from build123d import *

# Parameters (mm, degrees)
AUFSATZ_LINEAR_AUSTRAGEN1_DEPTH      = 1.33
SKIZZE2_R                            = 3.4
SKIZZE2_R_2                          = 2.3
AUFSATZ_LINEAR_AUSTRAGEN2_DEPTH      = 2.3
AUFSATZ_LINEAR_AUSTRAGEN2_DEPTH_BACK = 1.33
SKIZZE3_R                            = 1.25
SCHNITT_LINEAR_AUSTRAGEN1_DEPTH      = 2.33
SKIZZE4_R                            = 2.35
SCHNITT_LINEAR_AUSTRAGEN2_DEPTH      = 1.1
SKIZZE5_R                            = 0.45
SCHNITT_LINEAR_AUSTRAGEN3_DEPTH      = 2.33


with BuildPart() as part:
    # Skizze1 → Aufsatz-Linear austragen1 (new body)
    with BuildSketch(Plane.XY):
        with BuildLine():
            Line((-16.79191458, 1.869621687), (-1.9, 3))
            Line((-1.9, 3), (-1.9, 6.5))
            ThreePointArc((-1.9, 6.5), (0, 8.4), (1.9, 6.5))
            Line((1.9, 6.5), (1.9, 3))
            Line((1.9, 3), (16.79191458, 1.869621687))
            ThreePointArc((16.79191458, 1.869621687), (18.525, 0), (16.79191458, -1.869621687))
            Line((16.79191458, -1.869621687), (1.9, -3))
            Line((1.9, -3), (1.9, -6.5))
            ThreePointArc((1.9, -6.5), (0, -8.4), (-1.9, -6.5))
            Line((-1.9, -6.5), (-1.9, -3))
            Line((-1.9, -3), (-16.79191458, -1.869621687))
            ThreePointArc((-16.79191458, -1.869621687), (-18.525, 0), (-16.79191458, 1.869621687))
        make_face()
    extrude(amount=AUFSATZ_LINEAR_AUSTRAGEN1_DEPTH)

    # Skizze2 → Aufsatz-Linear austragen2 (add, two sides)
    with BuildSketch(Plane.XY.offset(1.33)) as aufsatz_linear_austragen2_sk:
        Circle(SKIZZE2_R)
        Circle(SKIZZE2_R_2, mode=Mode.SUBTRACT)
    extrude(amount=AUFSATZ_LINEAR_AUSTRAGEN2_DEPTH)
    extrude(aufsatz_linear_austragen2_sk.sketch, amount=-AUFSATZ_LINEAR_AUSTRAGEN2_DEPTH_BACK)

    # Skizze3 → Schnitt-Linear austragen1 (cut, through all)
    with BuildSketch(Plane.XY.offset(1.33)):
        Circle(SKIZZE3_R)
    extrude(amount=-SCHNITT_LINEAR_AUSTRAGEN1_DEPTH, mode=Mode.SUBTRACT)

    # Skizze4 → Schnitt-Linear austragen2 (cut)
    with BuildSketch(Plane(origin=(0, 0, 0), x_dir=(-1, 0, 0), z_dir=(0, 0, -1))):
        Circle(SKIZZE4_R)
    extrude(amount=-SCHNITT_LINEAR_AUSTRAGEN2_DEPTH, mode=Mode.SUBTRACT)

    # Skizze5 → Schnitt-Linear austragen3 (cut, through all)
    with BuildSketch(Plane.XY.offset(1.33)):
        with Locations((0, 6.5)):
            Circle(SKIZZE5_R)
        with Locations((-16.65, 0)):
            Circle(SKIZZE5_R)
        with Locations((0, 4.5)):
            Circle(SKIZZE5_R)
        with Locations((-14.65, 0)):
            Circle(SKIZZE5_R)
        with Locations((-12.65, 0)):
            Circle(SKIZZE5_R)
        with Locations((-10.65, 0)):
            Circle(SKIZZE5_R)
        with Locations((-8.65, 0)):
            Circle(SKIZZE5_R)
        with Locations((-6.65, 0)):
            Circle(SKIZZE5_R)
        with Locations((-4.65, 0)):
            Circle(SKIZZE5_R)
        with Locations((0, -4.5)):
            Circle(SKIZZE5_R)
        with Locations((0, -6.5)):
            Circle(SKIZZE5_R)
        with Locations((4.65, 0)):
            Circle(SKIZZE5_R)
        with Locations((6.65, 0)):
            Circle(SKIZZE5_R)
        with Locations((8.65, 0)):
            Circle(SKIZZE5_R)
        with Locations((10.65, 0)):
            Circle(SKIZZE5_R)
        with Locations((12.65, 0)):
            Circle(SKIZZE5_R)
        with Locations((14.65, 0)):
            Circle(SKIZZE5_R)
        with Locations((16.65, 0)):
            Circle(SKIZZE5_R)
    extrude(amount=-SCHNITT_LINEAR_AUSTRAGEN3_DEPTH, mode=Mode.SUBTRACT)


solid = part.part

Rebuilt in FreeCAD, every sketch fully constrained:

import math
import FreeCAD as App
import Part
import Sketcher
from FreeCAD import Vector
Q = App.Units.Quantity

doc = App.newDocument("Part")
body = doc.addObject("PartDesign::Body", "Body")

# Sketch on XY plane
sketch1 = doc.addObject("Sketcher::SketchObject", "Sketch")
body.addObject(sketch1)
sketch1.AttachmentSupport = (doc.XY_Plane, [""])
sketch1.MapMode = "FlatFace"
sketch1.addGeometry(Part.LineSegment(Vector(-1.9, 3, 0), Vector(-16.8, 1.9, 0)), False)
sketch1.addGeometry(Part.ArcOfCircle(Part.Circle(Vector(-16.6, 0, 0), Vector(0, 0, 1), 1.9), math.radians(94), math.radians(266)), False)
sketch1.addGeometry(Part.LineSegment(Vector(-16.8, -1.9, 0), Vector(-1.9, -3, 0)), False)
sketch1.addGeometry(Part.LineSegment(Vector(-1.9, -3, 0), Vector(-1.9, -6.5, 0)), False)
sketch1.addGeometry(Part.ArcOfCircle(Part.Circle(Vector(0, -6.5, 0), Vector(0, 0, 1), 1.9), math.radians(180), math.radians(360)), False)
sketch1.addGeometry(Part.LineSegment(Vector(1.9, -6.5, 0), Vector(1.9, -3, 0)), False)
sketch1.addGeometry(Part.LineSegment(Vector(1.9, -3, 0), Vector(16.8, -1.9, 0)), False)
sketch1.addGeometry(Part.ArcOfCircle(Part.Circle(Vector(16.6, 0, 0), Vector(0, 0, 1), 1.9), math.radians(-86), math.radians(86)), False)
sketch1.addGeometry(Part.LineSegment(Vector(16.8, 1.9, 0), Vector(1.9, 3, 0)), False)
sketch1.addGeometry(Part.LineSegment(Vector(1.9, 3, 0), Vector(1.9, 6.5, 0)), False)
sketch1.addGeometry(Part.ArcOfCircle(Part.Circle(Vector(0, 6.5, 0), Vector(0, 0, 1), 1.9), math.radians(0), math.radians(180)), False)
sketch1.addGeometry(Part.LineSegment(Vector(-1.9, 6.5, 0), Vector(-1.9, 3, 0)), False)
sketch1.addConstraint(Sketcher.Constraint("Tangent", 0, 2, 1, 1))
sketch1.addConstraint(Sketcher.Constraint("Tangent", 1, 2, 2, 1))
sketch1.addConstraint(Sketcher.Constraint("Coincident", 2, 2, 3, 1))
sketch1.addConstraint(Sketcher.Constraint("Tangent", 3, 2, 4, 1))
sketch1.addConstraint(Sketcher.Constraint("Tangent", 4, 2, 5, 1))
sketch1.addConstraint(Sketcher.Constraint("Coincident", 5, 2, 6, 1))
sketch1.addConstraint(Sketcher.Constraint("Tangent", 6, 2, 7, 1))
sketch1.addConstraint(Sketcher.Constraint("Tangent", 7, 2, 8, 1))
sketch1.addConstraint(Sketcher.Constraint("Coincident", 8, 2, 9, 1))
sketch1.addConstraint(Sketcher.Constraint("Tangent", 9, 2, 10, 1))
sketch1.addConstraint(Sketcher.Constraint("Tangent", 10, 2, 11, 1))
sketch1.addConstraint(Sketcher.Constraint("Coincident", 11, 2, 0, 1))
sketch1.addConstraint(Sketcher.Constraint("Vertical", 3))
sketch1.addConstraint(Sketcher.Constraint("Vertical", 5))
sketch1.addConstraint(Sketcher.Constraint("Vertical", 9))
sketch1.addConstraint(Sketcher.Constraint("Vertical", 11))
sketch1.addConstraint(Sketcher.Constraint("Equal", 1, 7))
sketch1.addConstraint(Sketcher.Constraint("Equal", 4, 10))
sketch1.addConstraint(Sketcher.Constraint("Symmetric", 1, 3, 7, 3, -1, 1))
sketch1.addConstraint(Sketcher.Constraint("Symmetric", 4, 3, 10, 3, -1, 1))
sketch1.addConstraint(Sketcher.Constraint("Symmetric", 2, 2, 5, 2, -2))
sketch1.addConstraint(Sketcher.Constraint("Symmetric", 0, 2, 7, 2, -2))
sketch1.addConstraint(Sketcher.Constraint("Parallel", 0, 6))
sketch1.addConstraint(Sketcher.Constraint("Radius", 4, Q("1.9 mm")))
sketch1.addConstraint(Sketcher.Constraint("DistanceY", 3, 2, 3, 1, Q("3.5 mm")))
sketch1.addConstraint(Sketcher.Constraint("DistanceY", 2, 2, -1, 1, Q("3 mm")))
sketch1.addConstraint(Sketcher.Constraint("Radius", 1, Q("1.875 mm")))
sketch1.addConstraint(Sketcher.Constraint("DistanceX", 1, 3, 7, 3, Q("33.3 mm")))
pad1 = doc.addObject("PartDesign::Pad", "Pad")
body.addObject(pad1)
pad1.Profile = sketch1
pad1.Length = 1.33

# Sketch on XY plane
sketch2 = doc.addObject("Sketcher::SketchObject", "Sketch001")
body.addObject(sketch2)
sketch2.AttachmentSupport = (doc.XY_Plane, [""])
sketch2.MapMode = "FlatFace"
sketch2.AttachmentOffset = App.Placement(Vector(0, 0, 1.33), App.Rotation())
sketch2.addGeometry(Part.Circle(Vector(0, 0, 0), Vector(0, 0, 1), 3.4), False)
sketch2.addGeometry(Part.Circle(Vector(0, 0, 0), Vector(0, 0, 1), 2.3), False)
sketch2.addConstraint(Sketcher.Constraint("Coincident", 0, 3, -1, 1))
sketch2.addConstraint(Sketcher.Constraint("Coincident", 1, 3, -1, 1))
sketch2.addConstraint(Sketcher.Constraint("Diameter", 0, Q("6.8 mm")))
sketch2.addConstraint(Sketcher.Constraint("Diameter", 1, Q("4.6 mm")))
pad2 = doc.addObject("PartDesign::Pad", "Pad001")
body.addObject(pad2)
pad2.Profile = sketch2
pad2.Type = "TwoLengths"
pad2.Length = 2.3
pad2.Length2 = 1.33

# Sketch on XY plane
sketch3 = doc.addObject("Sketcher::SketchObject", "Sketch002")
body.addObject(sketch3)
sketch3.AttachmentSupport = (doc.XY_Plane, [""])
sketch3.MapMode = "FlatFace"
sketch3.AttachmentOffset = App.Placement(Vector(0, 0, 1.33), App.Rotation())
sketch3.addGeometry(Part.Circle(Vector(0, 0, 0), Vector(0, 0, 1), 1.2), False)
sketch3.addConstraint(Sketcher.Constraint("Coincident", 0, 3, -1, 1))
sketch3.addConstraint(Sketcher.Constraint("Diameter", 0, Q("2.5 mm")))
pocket1 = doc.addObject("PartDesign::Pocket", "Pocket")
body.addObject(pocket1)
pocket1.Profile = sketch3
pocket1.Type = "ThroughAll"

# Sketch on XY plane
sketch4 = doc.addObject("Sketcher::SketchObject", "Sketch003")
body.addObject(sketch4)
sketch4.AttachmentSupport = (doc.XY_Plane, [""])
sketch4.MapMode = "FlatFace"
sketch4.addGeometry(Part.Circle(Vector(0, 0, 0), Vector(0, 0, 1), 2.4), False)
sketch4.addConstraint(Sketcher.Constraint("Coincident", 0, 3, -1, 1))
sketch4.addConstraint(Sketcher.Constraint("Diameter", 0, Q("4.7 mm")))
pocket2 = doc.addObject("PartDesign::Pocket", "Pocket001")
body.addObject(pocket2)
pocket2.Profile = sketch4
pocket2.Length = 1.1
pocket2.Reversed = True

# Sketch on XY plane
sketch5 = doc.addObject("Sketcher::SketchObject", "Sketch004")
body.addObject(sketch5)
sketch5.AttachmentSupport = (doc.XY_Plane, [""])
sketch5.MapMode = "FlatFace"
sketch5.AttachmentOffset = App.Placement(Vector(0, 0, 1.33), App.Rotation())
sketch5.addGeometry(Part.Circle(Vector(0, 6.5, 0), Vector(0, 0, 1), 0.45), False)
sketch5.addGeometry(Part.Circle(Vector(-16.65, 0, 0), Vector(0, 0, 1), 0.45), False)
sketch5.addGeometry(Part.Circle(Vector(0, 4.5, 0), Vector(0, 0, 1), 0.45), False)
sketch5.addGeometry(Part.Circle(Vector(-14.65, 0, 0), Vector(0, 0, 1), 0.45), False)
sketch5.addGeometry(Part.Circle(Vector(-12.65, 0, 0), Vector(0, 0, 1), 0.45), False)
sketch5.addGeometry(Part.Circle(Vector(-10.65, 0, 0), Vector(0, 0, 1), 0.45), False)
sketch5.addGeometry(Part.Circle(Vector(-8.65, 0, 0), Vector(0, 0, 1), 0.45), False)
sketch5.addGeometry(Part.Circle(Vector(-6.65, 0, 0), Vector(0, 0, 1), 0.45), False)
sketch5.addGeometry(Part.Circle(Vector(-4.65, 0, 0), Vector(0, 0, 1), 0.45), False)
sketch5.addGeometry(Part.Circle(Vector(0, -4.5, 0), Vector(0, 0, 1), 0.45), False)
sketch5.addGeometry(Part.Circle(Vector(0, -6.5, 0), Vector(0, 0, 1), 0.45), False)
sketch5.addGeometry(Part.Circle(Vector(4.65, 0, 0), Vector(0, 0, 1), 0.45), False)
sketch5.addGeometry(Part.Circle(Vector(6.65, 0, 0), Vector(0, 0, 1), 0.45), False)
sketch5.addGeometry(Part.Circle(Vector(8.65, 0, 0), Vector(0, 0, 1), 0.45), False)
sketch5.addGeometry(Part.Circle(Vector(10.65, 0, 0), Vector(0, 0, 1), 0.45), False)
sketch5.addGeometry(Part.Circle(Vector(12.65, 0, 0), Vector(0, 0, 1), 0.45), False)
sketch5.addGeometry(Part.Circle(Vector(14.65, 0, 0), Vector(0, 0, 1), 0.45), False)
sketch5.addGeometry(Part.Circle(Vector(16.65, 0, 0), Vector(0, 0, 1), 0.45), False)
sketch5.addConstraint(Sketcher.Constraint("Equal", 0, 1))
sketch5.addConstraint(Sketcher.Constraint("Equal", 1, 2))
sketch5.addConstraint(Sketcher.Constraint("Equal", 2, 3))
sketch5.addConstraint(Sketcher.Constraint("Equal", 3, 4))
sketch5.addConstraint(Sketcher.Constraint("Equal", 4, 5))
sketch5.addConstraint(Sketcher.Constraint("Equal", 5, 6))
sketch5.addConstraint(Sketcher.Constraint("Equal", 6, 7))
sketch5.addConstraint(Sketcher.Constraint("Equal", 7, 8))
sketch5.addConstraint(Sketcher.Constraint("Equal", 8, 9))
sketch5.addConstraint(Sketcher.Constraint("Equal", 9, 10))
sketch5.addConstraint(Sketcher.Constraint("Equal", 10, 11))
sketch5.addConstraint(Sketcher.Constraint("Equal", 11, 12))
sketch5.addConstraint(Sketcher.Constraint("Equal", 12, 13))
sketch5.addConstraint(Sketcher.Constraint("Equal", 13, 14))
sketch5.addConstraint(Sketcher.Constraint("Equal", 14, 15))
sketch5.addConstraint(Sketcher.Constraint("Equal", 15, 16))
sketch5.addConstraint(Sketcher.Constraint("Equal", 16, 17))
sketch5.addConstraint(Sketcher.Constraint("Symmetric", 2, 3, 9, 3, -1, 1))
sketch5.addConstraint(Sketcher.Constraint("Symmetric", 0, 3, 10, 3, -1, 1))
sketch5.addConstraint(Sketcher.Constraint("Symmetric", 8, 3, 11, 3, -1, 1))
sketch5.addConstraint(Sketcher.Constraint("Symmetric", 7, 3, 12, 3, -1, 1))
sketch5.addConstraint(Sketcher.Constraint("Symmetric", 6, 3, 13, 3, -1, 1))
sketch5.addConstraint(Sketcher.Constraint("Symmetric", 5, 3, 14, 3, -1, 1))
sketch5.addConstraint(Sketcher.Constraint("Symmetric", 4, 3, 15, 3, -1, 1))
sketch5.addConstraint(Sketcher.Constraint("Symmetric", 3, 3, 16, 3, -1, 1))
sketch5.addConstraint(Sketcher.Constraint("Symmetric", 1, 3, 17, 3, -1, 1))
sketch5.addConstraint(Sketcher.Constraint("PointOnObject", 0, 3, -2))
sketch5.addConstraint(Sketcher.Constraint("PointOnObject", 1, 3, -1))
sketch5.addConstraint(Sketcher.Constraint("PointOnObject", 2, 3, -2))
sketch5.addConstraint(Sketcher.Constraint("PointOnObject", 3, 3, -1))
sketch5.addConstraint(Sketcher.Constraint("PointOnObject", 4, 3, -1))
sketch5.addConstraint(Sketcher.Constraint("PointOnObject", 5, 3, -1))
sketch5.addConstraint(Sketcher.Constraint("PointOnObject", 6, 3, -1))
sketch5.addConstraint(Sketcher.Constraint("PointOnObject", 7, 3, -1))
sketch5.addConstraint(Sketcher.Constraint("PointOnObject", 8, 3, -1))
sketch5.addConstraint(Sketcher.Constraint("Diameter", 0, Q("0.9 mm")))
sketch5.addConstraint(Sketcher.Constraint("DistanceY", 2, 3, 0, 3, Q("2 mm")))
sketch5.addConstraint(Sketcher.Constraint("DistanceX", 1, 3, 3, 3, Q("2 mm")))
sketch5.addConstraint(Sketcher.Constraint("DistanceX", 3, 3, 4, 3, Q("2 mm")))
sketch5.addConstraint(Sketcher.Constraint("DistanceX", 4, 3, 5, 3, Q("2 mm")))
sketch5.addConstraint(Sketcher.Constraint("DistanceX", 5, 3, 6, 3, Q("2 mm")))
sketch5.addConstraint(Sketcher.Constraint("DistanceX", 6, 3, 7, 3, Q("2 mm")))
sketch5.addConstraint(Sketcher.Constraint("DistanceX", 7, 3, 8, 3, Q("2 mm")))
sketch5.addConstraint(Sketcher.Constraint("DistanceY", 9, 3, 2, 3, Q("9 mm")))
sketch5.addConstraint(Sketcher.Constraint("DistanceX", 8, 3, 11, 3, Q("9.3 mm")))
pocket3 = doc.addObject("PartDesign::Pocket", "Pocket002")
body.addObject(pocket3)
pocket3.Profile = sketch5
pocket3.Type = "ThroughAll"

doc.recompute()
